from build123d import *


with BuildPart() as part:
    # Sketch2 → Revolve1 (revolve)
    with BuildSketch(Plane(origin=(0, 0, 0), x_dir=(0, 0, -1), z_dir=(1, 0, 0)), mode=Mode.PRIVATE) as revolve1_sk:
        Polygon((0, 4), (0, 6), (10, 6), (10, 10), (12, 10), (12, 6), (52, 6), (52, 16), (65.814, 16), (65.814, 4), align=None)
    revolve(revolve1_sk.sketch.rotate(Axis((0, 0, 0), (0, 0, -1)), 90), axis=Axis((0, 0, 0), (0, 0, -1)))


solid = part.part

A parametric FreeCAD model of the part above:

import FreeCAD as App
import Part
import Sketcher

V = App.Vector


def add_polygon(sketch, points):
    """Adds a closed chain of lines whose ends are joined by coincident constraints."""
    first, n = sketch.GeometryCount, len(points)
    for a, b in zip(points, points[1:] + points[:1]):
        sketch.addGeometry(Part.LineSegment(App.Vector(*a, 0), App.Vector(*b, 0)), False)
    for i in range(n):
        sketch.addConstraint(Sketcher.Constraint("Coincident", first + i, 2, first + (i + 1) % n, 1))

doc = App.newDocument("Part")
body = doc.addObject("PartDesign::Body", "Body")

sketch1 = body.newObject("Sketcher::SketchObject", "Sketch")
sketch1.AttachmentSupport = (doc.getObject("YZ_Plane"), [""])
sketch1.MapMode = "FlatFace"
add_polygon(sketch1, [(6, 0), (4, 0), (4, -65.8), (16, -65.8), (16, -52), (6, -52), (6, -12), (10, -12), (10, -10), (6, -10)])
sketch1.addConstraint([
    Sketcher.Constraint("Horizontal", 0),
    Sketcher.Constraint("Vertical", 1),
    Sketcher.Constraint("Horizontal", 2),
    Sketcher.Constraint("Vertical", 3),
    Sketcher.Constraint("Horizontal", 4),
    Sketcher.Constraint("Vertical", 5),
    Sketcher.Constraint("Horizontal", 6),
    Sketcher.Constraint("Vertical", 7),
    Sketcher.Constraint("Horizontal", 8),
    Sketcher.Constraint("Vertical", 9),
    Sketcher.Constraint("PointOnObject", 0, 2, -1),
    Sketcher.Constraint("Vertical", 5, 2, 8, 2),
    Sketcher.Constraint("Equal", 0, 7),
    Sketcher.Constraint("Equal", 4, 9),
    Sketcher.Constraint("DistanceX", 0, 2, 0, 1, 2.0),
    Sketcher.Constraint("DistanceX", 2, 1, 2, 2, 12.0),
    Sketcher.Constraint("DistanceX", 6, 1, 6, 2, 4.0),
    Sketcher.Constraint("DistanceY", 5, 1, 5, 2, 40.0),
    Sketcher.Constraint("DistanceX", -1, 1, 0, 2, 4.0),
    Sketcher.Constraint("DistanceY", 1, 2, 1, 1, 65.814),
])
revolution = body.newObject("PartDesign::Revolution", "Revolution")
revolution.Profile = sketch1
revolution.ReferenceAxis = (sketch1, ["V_Axis"])
revolution.Angle = 360

doc.recompute()
